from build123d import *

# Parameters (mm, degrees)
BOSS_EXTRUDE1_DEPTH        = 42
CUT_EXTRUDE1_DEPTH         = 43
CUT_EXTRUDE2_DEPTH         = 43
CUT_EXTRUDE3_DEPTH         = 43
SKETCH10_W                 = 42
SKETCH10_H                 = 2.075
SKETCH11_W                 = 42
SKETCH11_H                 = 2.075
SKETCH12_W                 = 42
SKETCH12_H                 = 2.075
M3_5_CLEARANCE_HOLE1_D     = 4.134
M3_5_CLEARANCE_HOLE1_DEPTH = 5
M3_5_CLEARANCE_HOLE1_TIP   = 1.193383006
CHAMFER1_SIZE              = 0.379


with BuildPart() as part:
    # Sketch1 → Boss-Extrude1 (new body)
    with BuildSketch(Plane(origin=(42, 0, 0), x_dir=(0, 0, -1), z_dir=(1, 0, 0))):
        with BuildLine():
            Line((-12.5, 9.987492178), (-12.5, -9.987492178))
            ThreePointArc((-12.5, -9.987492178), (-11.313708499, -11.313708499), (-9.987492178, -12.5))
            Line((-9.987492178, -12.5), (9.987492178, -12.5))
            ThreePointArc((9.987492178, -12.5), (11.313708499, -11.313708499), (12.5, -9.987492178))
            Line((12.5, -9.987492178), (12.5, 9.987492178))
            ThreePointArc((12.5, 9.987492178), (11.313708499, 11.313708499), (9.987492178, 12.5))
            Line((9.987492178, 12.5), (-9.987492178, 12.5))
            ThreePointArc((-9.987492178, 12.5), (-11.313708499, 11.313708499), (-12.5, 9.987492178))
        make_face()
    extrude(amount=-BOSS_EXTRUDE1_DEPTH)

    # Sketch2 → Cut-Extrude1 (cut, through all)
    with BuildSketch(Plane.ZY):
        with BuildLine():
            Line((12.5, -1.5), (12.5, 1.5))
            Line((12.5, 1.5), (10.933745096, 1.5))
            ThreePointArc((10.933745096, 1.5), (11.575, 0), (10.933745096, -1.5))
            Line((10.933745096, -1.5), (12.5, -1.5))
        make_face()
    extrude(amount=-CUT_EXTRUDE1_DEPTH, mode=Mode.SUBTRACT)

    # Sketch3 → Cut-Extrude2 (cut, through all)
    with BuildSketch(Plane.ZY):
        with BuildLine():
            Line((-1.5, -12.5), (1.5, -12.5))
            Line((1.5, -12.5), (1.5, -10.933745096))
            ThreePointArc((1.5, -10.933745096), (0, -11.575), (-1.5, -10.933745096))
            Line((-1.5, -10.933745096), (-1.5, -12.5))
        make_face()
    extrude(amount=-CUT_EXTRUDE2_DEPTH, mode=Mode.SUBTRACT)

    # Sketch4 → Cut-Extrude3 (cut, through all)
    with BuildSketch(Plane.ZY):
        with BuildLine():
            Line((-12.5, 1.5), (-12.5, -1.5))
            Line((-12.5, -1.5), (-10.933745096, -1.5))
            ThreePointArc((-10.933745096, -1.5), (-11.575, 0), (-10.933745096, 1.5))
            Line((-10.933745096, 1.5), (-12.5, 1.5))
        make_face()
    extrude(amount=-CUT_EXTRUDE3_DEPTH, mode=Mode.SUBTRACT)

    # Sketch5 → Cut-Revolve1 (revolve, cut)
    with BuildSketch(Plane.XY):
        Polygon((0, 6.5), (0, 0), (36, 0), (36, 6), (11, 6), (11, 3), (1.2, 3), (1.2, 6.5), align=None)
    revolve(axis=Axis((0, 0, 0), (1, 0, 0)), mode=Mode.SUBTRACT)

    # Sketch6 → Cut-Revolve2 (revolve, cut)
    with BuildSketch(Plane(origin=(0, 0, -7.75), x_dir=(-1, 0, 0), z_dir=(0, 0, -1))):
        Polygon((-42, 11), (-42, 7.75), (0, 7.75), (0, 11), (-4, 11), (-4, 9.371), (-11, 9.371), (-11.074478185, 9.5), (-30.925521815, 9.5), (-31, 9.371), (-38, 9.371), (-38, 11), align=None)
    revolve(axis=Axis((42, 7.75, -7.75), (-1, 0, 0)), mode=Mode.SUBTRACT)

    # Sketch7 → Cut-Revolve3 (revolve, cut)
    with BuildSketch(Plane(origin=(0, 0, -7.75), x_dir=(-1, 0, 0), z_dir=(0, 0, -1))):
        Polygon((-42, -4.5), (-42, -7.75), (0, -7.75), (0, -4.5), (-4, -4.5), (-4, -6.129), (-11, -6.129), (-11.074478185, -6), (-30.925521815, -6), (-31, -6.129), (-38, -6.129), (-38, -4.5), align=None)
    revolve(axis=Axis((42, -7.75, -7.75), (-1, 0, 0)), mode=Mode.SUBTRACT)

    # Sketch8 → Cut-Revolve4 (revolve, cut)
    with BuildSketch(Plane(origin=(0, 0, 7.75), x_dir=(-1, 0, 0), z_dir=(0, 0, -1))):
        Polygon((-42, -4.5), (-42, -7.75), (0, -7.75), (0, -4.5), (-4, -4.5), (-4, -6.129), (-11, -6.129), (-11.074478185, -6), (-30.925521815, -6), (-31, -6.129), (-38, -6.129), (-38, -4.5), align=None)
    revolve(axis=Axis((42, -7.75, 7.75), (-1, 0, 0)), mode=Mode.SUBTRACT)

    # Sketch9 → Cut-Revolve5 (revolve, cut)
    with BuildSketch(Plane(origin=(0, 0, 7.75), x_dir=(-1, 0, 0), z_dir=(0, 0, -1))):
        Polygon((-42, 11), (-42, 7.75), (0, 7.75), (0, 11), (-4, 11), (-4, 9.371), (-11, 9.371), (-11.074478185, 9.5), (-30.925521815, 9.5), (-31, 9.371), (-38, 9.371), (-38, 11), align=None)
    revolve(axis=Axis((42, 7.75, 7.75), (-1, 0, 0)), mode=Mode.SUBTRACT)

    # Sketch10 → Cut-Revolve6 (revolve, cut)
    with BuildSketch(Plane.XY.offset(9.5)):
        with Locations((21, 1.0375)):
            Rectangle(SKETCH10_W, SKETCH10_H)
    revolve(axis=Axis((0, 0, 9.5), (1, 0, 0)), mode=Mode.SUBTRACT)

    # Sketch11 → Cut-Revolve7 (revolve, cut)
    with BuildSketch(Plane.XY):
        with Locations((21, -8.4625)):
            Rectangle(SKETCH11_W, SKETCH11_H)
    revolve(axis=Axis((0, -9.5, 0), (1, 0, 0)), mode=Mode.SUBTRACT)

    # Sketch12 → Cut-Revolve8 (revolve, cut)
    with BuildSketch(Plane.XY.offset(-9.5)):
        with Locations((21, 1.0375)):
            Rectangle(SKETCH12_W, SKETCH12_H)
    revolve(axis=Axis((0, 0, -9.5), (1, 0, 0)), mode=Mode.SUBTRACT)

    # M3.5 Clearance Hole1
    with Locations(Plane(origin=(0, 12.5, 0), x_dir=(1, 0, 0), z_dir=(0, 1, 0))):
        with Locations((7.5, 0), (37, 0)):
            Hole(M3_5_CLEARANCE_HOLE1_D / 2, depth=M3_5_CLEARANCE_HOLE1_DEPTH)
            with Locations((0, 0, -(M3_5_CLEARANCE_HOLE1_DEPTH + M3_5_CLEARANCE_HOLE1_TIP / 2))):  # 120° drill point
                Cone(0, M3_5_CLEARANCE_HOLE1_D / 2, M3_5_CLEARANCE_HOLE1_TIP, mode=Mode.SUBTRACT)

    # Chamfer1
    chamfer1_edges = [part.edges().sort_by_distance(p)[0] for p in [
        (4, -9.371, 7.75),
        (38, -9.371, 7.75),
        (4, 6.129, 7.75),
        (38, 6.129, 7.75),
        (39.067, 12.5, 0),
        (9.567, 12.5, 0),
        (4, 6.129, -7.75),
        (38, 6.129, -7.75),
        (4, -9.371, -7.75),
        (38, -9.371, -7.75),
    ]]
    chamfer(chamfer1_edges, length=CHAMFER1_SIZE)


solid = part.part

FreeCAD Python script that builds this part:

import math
import FreeCAD as App
import Part
import Sketcher
Q = App.Units.Quantity


def edges_at(feature, points):
    """Names of the edges that pass closest to the given points."""
    edges = feature.Shape.Edges
    near = lambda p: min(range(len(edges)), key=lambda i: edges[i].distToShape(Part.Vertex(*p))[0])
    return sorted({f"Edge{near(p) + 1}" for p in points})


def add_polygon(sketch, points):
    """Adds a closed chain of lines whose ends are joined by coincident constraints."""
    first, n = sketch.GeometryCount, len(points)
    for a, b in zip(points, points[1:] + points[:1]):
        sketch.addGeometry(Part.LineSegment(App.Vector(*a, 0), App.Vector(*b, 0)), False)
    for i in range(n):
        sketch.addConstraint(Sketcher.Constraint("Coincident", first + i, 2, first + (i + 1) % n, 1))

doc = App.newDocument("Part")
body = doc.addObject("PartDesign::Body", "Body")

# Sketch on YZ plane
sketch1 = doc.addObject("Sketcher::SketchObject", "Sketch")
body.addObject(sketch1)
sketch1.AttachmentSupport = (doc.YZ_Plane, [""])
sketch1.MapMode = "FlatFace"
sketch1.AttachmentOffset = App.Placement(App.Vector(0, 0, 42), App.Rotation())
sketch1.addGeometry([
    Part.LineSegment(App.Vector(10, 12.5, 0), App.Vector(-10, 12.5, 0)),  # 0
    Part.ArcOfCircle(Part.Circle(App.Vector(0, 0, 0), App.Vector(0, 0, 1), 16), math.radians(128.62), math.radians(141.38)),  # 1
    Part.LineSegment(App.Vector(-12.5, 10, 0), App.Vector(-12.5, -10, 0)),  # 2
    Part.ArcOfCircle(Part.Circle(App.Vector(0, 0, 0), App.Vector(0, 0, 1), 16), math.radians(-141.38), math.radians(-128.62)),  # 3
    Part.LineSegment(App.Vector(-10, -12.5, 0), App.Vector(10, -12.5, 0)),  # 4
    Part.ArcOfCircle(Part.Circle(App.Vector(0, 0, 0), App.Vector(0, 0, 1), 16), math.radians(-51.38), math.radians(-38.62)),  # 5
    Part.LineSegment(App.Vector(12.5, -10, 0), App.Vector(12.5, 10, 0)),  # 6
    Part.ArcOfCircle(Part.Circle(App.Vector(0, 0, 0), App.Vector(0, 0, 1), 16), math.radians(38.62), math.radians(51.38)),  # 7
], False)
sketch1.addConstraint([
    Sketcher.Constraint("Coincident", 0, 2, 1, 1),
    Sketcher.Constraint("Coincident", 1, 2, 2, 1),
    Sketcher.Constraint("Coincident", 2, 2, 3, 1),
    Sketcher.Constraint("Coincident", 3, 2, 4, 1),
    Sketcher.Constraint("Coincident", 4, 2, 5, 1),
    Sketcher.Constraint("Coincident", 5, 2, 6, 1),
    Sketcher.Constraint("Coincident", 6, 2, 7, 1),
    Sketcher.Constraint("Coincident", 7, 2, 0, 1),
    Sketcher.Constraint("Horizontal", 0),
    Sketcher.Constraint("Vertical", 2),
    Sketcher.Constraint("Horizontal", 4),
    Sketcher.Constraint("Vertical", 6),
    Sketcher.Constraint("Coincident", 1, 3, -1, 1),
    Sketcher.Constraint("Coincident", 3, 3, -1, 1),
    Sketcher.Constraint("Coincident", 5, 3, -1, 1),
    Sketcher.Constraint("Coincident", 7, 3, -1, 1),
    Sketcher.Constraint("Equal", 1, 3),
    Sketcher.Constraint("Equal", 3, 5),
    Sketcher.Constraint("Equal", 5, 7),
    Sketcher.Constraint("Horizontal", 2, 2, 5, 2),
    Sketcher.Constraint("Vertical", 0, 2, 3, 2),
    Sketcher.Constraint("Equal", 4, 2),
    Sketcher.Constraint("Radius", 1, 16.0),
    Sketcher.Constraint("DistanceY", -1, 1, 0, 2, 12.5),
])
pad1 = doc.addObject("PartDesign::Pad", "Pad")
body.addObject(pad1)
pad1.Profile = sketch1
pad1.Length = 42
pad1.Reversed = True

# Sketch on YZ plane
sketch2 = doc.addObject("Sketcher::SketchObject", "Sketch001")
body.addObject(sketch2)
sketch2.AttachmentSupport = (doc.YZ_Plane, [""])
sketch2.MapMode = "FlatFace"
sketch2.addGeometry([
    Part.LineSegment(App.Vector(-1.5, 12.5, 0), App.Vector(1.5, 12.5, 0)),
    Part.LineSegment(App.Vector(1.5, 12.5, 0), App.Vector(1.5, 10.9, 0)),
    Part.ArcOfCircle(Part.Circle(App.Vector(0, 9.5, 0), App.Vector(0, 0, 1), 2.1), math.radians(44), math.radians(136)),
    Part.LineSegment(App.Vector(-1.5, 10.9, 0), App.Vector(-1.5, 12.5, 0)),
], False)
sketch2.addConstraint([
    Sketcher.Constraint("Coincident", 0, 2, 1, 1),
    Sketcher.Constraint("Coincident", 1, 2, 2, 1),
    Sketcher.Constraint("Coincident", 2, 2, 3, 1),
    Sketcher.Constraint("Coincident", 3, 2, 0, 1),
    Sketcher.Constraint("Horizontal", 0),
    Sketcher.Constraint("Vertical", 1),
    Sketcher.Constraint("Vertical", 3),
    Sketcher.Constraint("Symmetric", 1, 2, 2, 2, -2),
    Sketcher.Constraint("DistanceX", 0, 1, 0, 2, 3.0),
    Sketcher.Constraint("Radius", 2, 2.075),
    Sketcher.Constraint("DistanceY", 2, 3, 0, 2, 3.0),
    Sketcher.Constraint("DistanceY", -1, 1, 2, 3, 9.5),
])
pocket1 = doc.addObject("PartDesign::Pocket", "Pocket")
body.addObject(pocket1)
pocket1.Profile = sketch2
pocket1.Type = "ThroughAll"
pocket1.Reversed = True

# Sketch on YZ plane
sketch3 = doc.addObject("Sketcher::SketchObject", "Sketch002")
body.addObject(sketch3)
sketch3.AttachmentSupport = (doc.YZ_Plane, [""])
sketch3.MapMode = "FlatFace"
sketch3.addGeometry([
    Part.LineSegment(App.Vector(-12.5, -1.5, 0), App.Vector(-12.5, 1.5, 0)),
    Part.LineSegment(App.Vector(-12.5, 1.5, 0), App.Vector(-10.9, 1.5, 0)),
    Part.ArcOfCircle(Part.Circle(App.Vector(-9.5, 0, 0), App.Vector(0, 0, 1), 2.1), math.radians(134), math.radians(226)),
    Part.LineSegment(App.Vector(-10.9, -1.5, 0), App.Vector(-12.5, -1.5, 0)),
], False)
sketch3.addConstraint([
    Sketcher.Constraint("Coincident", 0, 2, 1, 1),
    Sketcher.Constraint("Coincident", 1, 2, 2, 1),
    Sketcher.Constraint("Coincident", 2, 2, 3, 1),
    Sketcher.Constraint("Coincident", 3, 2, 0, 1),
    Sketcher.Constraint("Vertical", 0),
    Sketcher.Constraint("Horizontal", 1),
    Sketcher.Constraint("Horizontal", 3),
    Sketcher.Constraint("Symmetric", 1, 2, 2, 2, -1),
    Sketcher.Constraint("DistanceY", 0, 1, 0, 2, 3.0),
    Sketcher.Constraint("Radius", 2, 2.075),
    Sketcher.Constraint("DistanceX", 0, 2, 2, 3, 3.0),
    Sketcher.Constraint("DistanceX", 2, 3, -1, 1, 9.5),
])
pocket2 = doc.addObject("PartDesign::Pocket", "Pocket001")
body.addObject(pocket2)
pocket2.Profile = sketch3
pocket2.Type = "ThroughAll"
pocket2.Reversed = True

# Sketch on YZ plane
sketch4 = doc.addObject("Sketcher::SketchObject", "Sketch003")
body.addObject(sketch4)
sketch4.AttachmentSupport = (doc.YZ_Plane, [""])
sketch4.MapMode = "FlatFace"
sketch4.addGeometry([
    Part.LineSegment(App.Vector(1.5, -12.5, 0), App.Vector(-1.5, -12.5, 0)),
    Part.LineSegment(App.Vector(-1.5, -12.5, 0), App.Vector(-1.5, -10.9, 0)),
    Part.ArcOfCircle(Part.Circle(App.Vector(0, -9.5, 0), App.Vector(0, 0, 1), 2.1), math.radians(-136), math.radians(-44)),
    Part.LineSegment(App.Vector(1.5, -10.9, 0), App.Vector(1.5, -12.5, 0)),
], False)
sketch4.addConstraint([
    Sketcher.Constraint("Coincident", 0, 2, 1, 1),
    Sketcher.Constraint("Coincident", 1, 2, 2, 1),
    Sketcher.Constraint("Coincident", 2, 2, 3, 1),
    Sketcher.Constraint("Coincident", 3, 2, 0, 1),
    Sketcher.Constraint("Horizontal", 0),
    Sketcher.Constraint("Vertical", 1),
    Sketcher.Constraint("Vertical", 3),
    Sketcher.Constraint("Symmetric", 1, 2, 2, 2, -2),
    Sketcher.Constraint("DistanceX", 0, 2, 0, 1, 3.0),
    Sketcher.Constraint("Radius", 2, 2.075),
    Sketcher.Constraint("DistanceY", 0, 2, 2, 3, 3.0),
    Sketcher.Constraint("DistanceY", 2, 3, -1, 1, 9.5),
])
pocket3 = doc.addObject("PartDesign::Pocket", "Pocket002")
body.addObject(pocket3)
pocket3.Profile = sketch4
pocket3.Type = "ThroughAll"
pocket3.Reversed = True

# Sketch on XY plane
sketch5 = doc.addObject("Sketcher::SketchObject", "Sketch004")
body.addObject(sketch5)
sketch5.AttachmentSupport = (doc.XY_Plane, [""])
sketch5.MapMode = "FlatFace"
add_polygon(sketch5, [(0, 6.5), (0, 0), (36, 0), (36, 6), (11, 6), (11, 3), (1.2, 3), (1.2, 6.5)])  # lines 0-7
sketch5.addConstraint([
    Sketcher.Constraint("Vertical", 0),
    Sketcher.Constraint("Horizontal", 1),
    Sketcher.Constraint("Vertical", 2),
    Sketcher.Constraint("Horizontal", 3),
    Sketcher.Constraint("Vertical", 4),
    Sketcher.Constraint("Horizontal", 5),
    Sketcher.Constraint("Vertical", 6),
    Sketcher.Constraint("Horizontal", 7),
    Sketcher.Constraint("Coincident", 0, 2, -1, 1),
    Sketcher.Constraint("DistanceX", 1, 1, 1, 2, 36.0),
    Sketcher.Constraint("DistanceX", 3, 2, 3, 1, 25.0),
    Sketcher.Constraint("DistanceY", 2, 1, 2, 2, 6.0),
    Sketcher.Constraint("DistanceY", 4, 2, 4, 1, 3.0),
    Sketcher.Constraint("DistanceX", 5, 2, 5, 1, 9.8),
    Sketcher.Constraint("DistanceY", 0, 2, 0, 1, 6.5),
])
groove = doc.addObject("PartDesign::Groove", "Groove")
body.addObject(groove)
groove.Profile = sketch5
groove.ReferenceAxis = (sketch5, ["H_Axis"])
groove.Angle = 360

# Sketch on XY plane
sketch6 = doc.addObject("Sketcher::SketchObject", "Sketch005")
body.addObject(sketch6)
sketch6.AttachmentSupport = (doc.XY_Plane, [""])
sketch6.MapMode = "FlatFace"
sketch6.AttachmentOffset = App.Placement(App.Vector(0, 0, -7.75), App.Rotation())
add_polygon(sketch6, [(42, 11), (42, 7.75), (0, 7.75), (0, 11), (4, 11), (4, 9.37), (11, 9.37), (11.07, 9.5), (30.93, 9.5), (31, 9.37), (38, 9.37), (38, 11)])  # lines 0-11
sketch6.addGeometry(Part.LineSegment(App.Vector(42, 7.75, 0), App.Vector(0, 7.75, 0)), True)  # axis
sketch6.addConstraint([
    Sketcher.Constraint("Vertical", 0),
    Sketcher.Constraint("Horizontal", 1),
    Sketcher.Constraint("Vertical", 2),
    Sketcher.Constraint("Horizontal", 3),
    Sketcher.Constraint("Vertical", 4),
    Sketcher.Constraint("Horizontal", 5),
    Sketcher.Constraint("Horizontal", 7),
    Sketcher.Constraint("Horizontal", 9),
    Sketcher.Constraint("Vertical", 10),
    Sketcher.Constraint("Horizontal", 11),
    Sketcher.Constraint("Horizontal", 12),
    Sketcher.Constraint("Coincident", 12, 1, 0, 2),
    Sketcher.Constraint("PointOnObject", 1, 2, -2),
    Sketcher.Constraint("PointOnObject", 12, 2, -2),
    Sketcher.Constraint("Horizontal", 5, 2, 8, 2),
    Sketcher.Constraint("Horizontal", 3, 2, 10, 2),
    Sketcher.Constraint("Equal", 5, 9),
    Sketcher.Constraint("Equal", 3, 11),
    Sketcher.Constraint("Equal", 6, 8),
    Sketcher.Constraint("DistanceX", 1, 2, 1, 1, 42.0),
    Sketcher.Constraint("DistanceX", 3, 1, 3, 2, 4.0),
    Sketcher.Constraint("DistanceX", 5, 1, 5, 2, 7.0),
    Sketcher.Constraint("Angle", 6, Q("60 deg")),
    Sketcher.Constraint("DistanceY", -1, 1, 2, 2, 11.0),
    Sketcher.Constraint("DistanceY", 0, 2, 0, 1, 3.25),
    Sketcher.Constraint("DistanceY", -1, 1, 6, 2, 9.5),
    Sketcher.Constraint("DistanceY", 4, 2, 4, 1, 1.629),
])
groove2 = doc.addObject("PartDesign::Groove", "Groove001")
body.addObject(groove2)
groove2.Profile = sketch6
groove2.ReferenceAxis = (sketch6, ["Axis0"])
groove2.Angle = 360

# Sketch on XY plane
sketch7 = doc.addObject("Sketcher::SketchObject", "Sketch006")
body.addObject(sketch7)
sketch7.AttachmentSupport = (doc.XY_Plane, [""])
sketch7.MapMode = "FlatFace"
sketch7.AttachmentOffset = App.Placement(App.Vector(0, 0, -7.75), App.Rotation())
add_polygon(sketch7, [(42, -4.5), (42, -7.75), (0, -7.75), (0, -4.5), (4, -4.5), (4, -6.13), (11, -6.13), (11.07, -6), (30.93, -6), (31, -6.13), (38, -6.13), (38, -4.5)])  # lines 0-11
sketch7.addGeometry(Part.LineSegment(App.Vector(42, -7.75, 0), App.Vector(0, -7.75, 0)), True)  # axis
sketch7.addConstraint([
    Sketcher.Constraint("Vertical", 0),
    Sketcher.Constraint("Horizontal", 1),
    Sketcher.Constraint("Vertical", 2),
    Sketcher.Constraint("Horizontal", 3),
    Sketcher.Constraint("Vertical", 4),
    Sketcher.Constraint("Horizontal", 5),
    Sketcher.Constraint("Horizontal", 7),
    Sketcher.Constraint("Horizontal", 9),
    Sketcher.Constraint("Vertical", 10),
    Sketcher.Constraint("Horizontal", 11),
    Sketcher.Constraint("Horizontal", 12),
    Sketcher.Constraint("Coincident", 12, 1, 0, 2),
    Sketcher.Constraint("PointOnObject", 1, 2, -2),
    Sketcher.Constraint("PointOnObject", 12, 2, -2),
    Sketcher.Constraint("Horizontal", 5, 2, 8, 2),
    Sketcher.Constraint("Horizontal", 3, 2, 10, 2),
    Sketcher.Constraint("Equal", 5, 9),
    Sketcher.Constraint("Equal", 3, 11),
    Sketcher.Constraint("Equal", 6, 8),
    Sketcher.Constraint("DistanceX", 1, 2, 1, 1, 42.0),
    Sketcher.Constraint("DistanceX", 3, 1, 3, 2, 4.0),
    Sketcher.Constraint("DistanceX", 5, 1, 5, 2, 7.0),
    Sketcher.Constraint("Angle", 6, Q("60 deg")),
    Sketcher.Constraint("DistanceY", 6, 2, -1, 1, 6.0),
    Sketcher.Constraint("DistanceY", 0, 2, 0, 1, 3.25),
    Sketcher.Constraint("DistanceY", 2, 2, -1, 1, 4.5),
    Sketcher.Constraint("DistanceY", 4, 2, 4, 1, 1.629),
])
groove3 = doc.addObject("PartDesign::Groove", "Groove002")
body.addObject(groove3)
groove3.Profile = sketch7
groove3.ReferenceAxis = (sketch7, ["Axis0"])
groove3.Angle = 360

# Sketch on XY plane
sketch8 = doc.addObject("Sketcher::SketchObject", "Sketch007")
body.addObject(sketch8)
sketch8.AttachmentSupport = (doc.XY_Plane, [""])
sketch8.MapMode = "FlatFace"
sketch8.AttachmentOffset = App.Placement(App.Vector(0, 0, 7.75), App.Rotation())
add_polygon(sketch8, [(42, -4.5), (42, -7.75), (0, -7.75), (0, -4.5), (4, -4.5), (4, -6.13), (11, -6.13), (11.07, -6), (30.93, -6), (31, -6.13), (38, -6.13), (38, -4.5)])  # lines 0-11
sketch8.addGeometry(Part.LineSegment(App.Vector(42, -7.75, 0), App.Vector(0, -7.75, 0)), True)  # axis
sketch8.addConstraint([
    Sketcher.Constraint("Vertical", 0),
    Sketcher.Constraint("Horizontal", 1),
    Sketcher.Constraint("Vertical", 2),
    Sketcher.Constraint("Horizontal", 3),
    Sketcher.Constraint("Vertical", 4),
    Sketcher.Constraint("Horizontal", 5),
    Sketcher.Constraint("Horizontal", 7),
    Sketcher.Constraint("Horizontal", 9),
    Sketcher.Constraint("Vertical", 10),
    Sketcher.Constraint("Horizontal", 11),
    Sketcher.Constraint("Horizontal", 12),
    Sketcher.Constraint("Coincident", 12, 1, 0, 2),
    Sketcher.Constraint("PointOnObject", 1, 2, -2),
    Sketcher.Constraint("PointOnObject", 12, 2, -2),
    Sketcher.Constraint("Horizontal", 5, 2, 8, 2),
    Sketcher.Constraint("Horizontal", 3, 2, 10, 2),
    Sketcher.Constraint("Equal", 5, 9),
    Sketcher.Constraint("Equal", 3, 11),
    Sketcher.Constraint("Equal", 6, 8),
    Sketcher.Constraint("DistanceX", 1, 2, 1, 1, 42.0),
    Sketcher.Constraint("DistanceX", 3, 1, 3, 2, 4.0),
    Sketcher.Constraint("DistanceX", 5, 1, 5, 2, 7.0),
    Sketcher.Constraint("Angle", 6, Q("60 deg")),
    Sketcher.Constraint("DistanceY", 6, 2, -1, 1, 6.0),
    Sketcher.Constraint("DistanceY", 0, 2, 0, 1, 3.25),
    Sketcher.Constraint("DistanceY", 2, 2, -1, 1, 4.5),
    Sketcher.Constraint("DistanceY", 4, 2, 4, 1, 1.629),
])
groove4 = doc.addObject("PartDesign::Groove", "Groove003")
body.addObject(groove4)
groove4.Profile = sketch8
groove4.ReferenceAxis = (sketch8, ["Axis0"])
groove4.Angle = 360

# Sketch on XY plane
sketch9 = doc.addObject("Sketcher::SketchObject", "Sketch008")
body.addObject(sketch9)
sketch9.AttachmentSupport = (doc.XY_Plane, [""])
sketch9.MapMode = "FlatFace"
sketch9.AttachmentOffset = App.Placement(App.Vector(0, 0, 7.75), App.Rotation())
add_polygon(sketch9, [(42, 11), (42, 7.75), (0, 7.75), (0, 11), (4, 11), (4, 9.37), (11, 9.37), (11.07, 9.5), (30.93, 9.5), (31, 9.37), (38, 9.37), (38, 11)])  # lines 0-11
sketch9.addGeometry(Part.LineSegment(App.Vector(42, 7.75, 0), App.Vector(0, 7.75, 0)), True)  # axis
sketch9.addConstraint([
    Sketcher.Constraint("Vertical", 0),
    Sketcher.Constraint("Horizontal", 1),
    Sketcher.Constraint("Vertical", 2),
    Sketcher.Constraint("Horizontal", 3),
    Sketcher.Constraint("Vertical", 4),
    Sketcher.Constraint("Horizontal", 5),
    Sketcher.Constraint("Horizontal", 7),
    Sketcher.Constraint("Horizontal", 9),
    Sketcher.Constraint("Vertical", 10),
    Sketcher.Constraint("Horizontal", 11),
    Sketcher.Constraint("Horizontal", 12),
    Sketcher.Constraint("Coincident", 12, 1, 0, 2),
    Sketcher.Constraint("PointOnObject", 1, 2, -2),
    Sketcher.Constraint("PointOnObject", 12, 2, -2),
    Sketcher.Constraint("Horizontal", 5, 2, 8, 2),
    Sketcher.Constraint("Horizontal", 3, 2, 10, 2),
    Sketcher.Constraint("Equal", 5, 9),
    Sketcher.Constraint("Equal", 3, 11),
    Sketcher.Constraint("Equal", 6, 8),
    Sketcher.Constraint("DistanceX", 1, 2, 1, 1, 42.0),
    Sketcher.Constraint("DistanceX", 3, 1, 3, 2, 4.0),
    Sketcher.Constraint("DistanceX", 5, 1, 5, 2, 7.0),
    Sketcher.Constraint("Angle", 6, Q("60 deg")),
    Sketcher.Constraint("DistanceY", -1, 1, 2, 2, 11.0),
    Sketcher.Constraint("DistanceY", 0, 2, 0, 1, 3.25),
    Sketcher.Constraint("DistanceY", -1, 1, 6, 2, 9.5),
    Sketcher.Constraint("DistanceY", 4, 2, 4, 1, 1.629),
])
groove5 = doc.addObject("PartDesign::Groove", "Groove004")
body.addObject(groove5)
groove5.Profile = sketch9
groove5.ReferenceAxis = (sketch9, ["Axis0"])
groove5.Angle = 360

# Sketch on XY plane
sketch10 = doc.addObject("Sketcher::SketchObject", "Sketch009")
body.addObject(sketch10)
sketch10.AttachmentSupport = (doc.XY_Plane, [""])
sketch10.MapMode = "FlatFace"
sketch10.AttachmentOffset = App.Placement(App.Vector(0, 0, 9.5), App.Rotation())
add_polygon(sketch10, [(0, 2.1), (0, 0), (42, 0), (42, 2.1)])  # lines 0-3
sketch10.addConstraint([
    Sketcher.Constraint("Vertical", 0),
    Sketcher.Constraint("Horizontal", 1),
    Sketcher.Constraint("Vertical", 2),
    Sketcher.Constraint("Horizontal", 3),
    Sketcher.Constraint("Coincident", 0, 2, -1, 1),
    Sketcher.Constraint("DistanceX", 1, 1, 1, 2, 42.0),
    Sketcher.Constraint("DistanceY", 0, 2, 0, 1, 2.075),
])
groove6 = doc.addObject("PartDesign::Groove", "Groove005")
body.addObject(groove6)
groove6.Profile = sketch10
groove6.ReferenceAxis = (sketch10, ["H_Axis"])
groove6.Angle = 360

# Sketch on XY plane
sketch11 = doc.addObject("Sketcher::SketchObject", "Sketch010")
body.addObject(sketch11)
sketch11.AttachmentSupport = (doc.XY_Plane, [""])
sketch11.MapMode = "FlatFace"
add_polygon(sketch11, [(0, -7.4), (0, -9.5), (42, -9.5), (42, -7.4)])  # lines 0-3
sketch11.addGeometry(Part.LineSegment(App.Vector(0, -9.5, 0), App.Vector(42, -9.5, 0)), True)  # axis
sketch11.addConstraint([
    Sketcher.Constraint("Vertical", 0),
    Sketcher.Constraint("Horizontal", 1),
    Sketcher.Constraint("Vertical", 2),
    Sketcher.Constraint("Horizontal", 3),
    Sketcher.Constraint("Horizontal", 4),
    Sketcher.Constraint("Coincident", 4, 1, 0, 2),
    Sketcher.Constraint("PointOnObject", 0, 2, -2),
    Sketcher.Constraint("Vertical", 2, 2, 4, 2),
    Sketcher.Constraint("DistanceX", 1, 1, 1, 2, 42.0),
    Sketcher.Constraint("DistanceY", 0, 2, -1, 1, 9.5),
    Sketcher.Constraint("DistanceY", 0, 2, 0, 1, 2.075),
])
groove7 = doc.addObject("PartDesign::Groove", "Groove006")
body.addObject(groove7)
groove7.Profile = sketch11
groove7.ReferenceAxis = (sketch11, ["Axis0"])
groove7.Angle = 360

# Sketch on XY plane
sketch12 = doc.addObject("Sketcher::SketchObject", "Sketch011")
body.addObject(sketch12)
sketch12.AttachmentSupport = (doc.XY_Plane, [""])
sketch12.MapMode = "FlatFace"
sketch12.AttachmentOffset = App.Placement(App.Vector(0, 0, -9.5), App.Rotation())
add_polygon(sketch12, [(0, 2.1), (0, 0), (42, 0), (42, 2.1)])  # lines 0-3
sketch12.addConstraint([
    Sketcher.Constraint("Vertical", 0),
    Sketcher.Constraint("Horizontal", 1),
    Sketcher.Constraint("Vertical", 2),
    Sketcher.Constraint("Horizontal", 3),
    Sketcher.Constraint("Coincident", 0, 2, -1, 1),
    Sketcher.Constraint("DistanceX", 1, 1, 1, 2, 42.0),
    Sketcher.Constraint("DistanceY", 0, 2, 0, 1, 2.075),
])
groove8 = doc.addObject("PartDesign::Groove", "Groove007")
body.addObject(groove8)
groove8.Profile = sketch12
groove8.ReferenceAxis = (sketch12, ["H_Axis"])
groove8.Angle = 360

# Sketch on XZ plane
sketch13 = doc.addObject("Sketcher::SketchObject", "Sketch012")
body.addObject(sketch13)
sketch13.AttachmentSupport = (doc.XZ_Plane, [""])
sketch13.MapMode = "FlatFace"
sketch13.AttachmentOffset = App.Placement(App.Vector(0, 0, -12.5), App.Rotation())
sketch13.addGeometry([
    Part.Circle(App.Vector(7.5, 0, 0), App.Vector(0, 0, 1), 2.1),
    Part.Circle(App.Vector(37, 0, 0), App.Vector(0, 0, 1), 2.1),
], False)
sketch13.addConstraint([
    Sketcher.Constraint("Equal", 0, 1),
    Sketcher.Constraint("PointOnObject", 0, 3, -1),
    Sketcher.Constraint("PointOnObject", 1, 3, -1),
    Sketcher.Constraint("Diameter", 0, 4.134),
    Sketcher.Constraint("DistanceX", -1, 1, 1, 3, 37.0),
    Sketcher.Constraint("DistanceX", -1, 1, 0, 3, 7.5),
])
doc.recompute()
hole = doc.addObject("PartDesign::Hole", "Hole")
body.addObject(hole)
hole.Profile = sketch13
hole.ThreadType = "None"
hole.Diameter = 4.134
hole.DepthType = "Dimension"
hole.Depth = 5
hole.DrillPoint = "Angled"
hole.DrillPointAngle = 120
hole.Reversed = True
doc.recompute()

chamfer = doc.addObject("PartDesign::Chamfer", "Chamfer")
body.addObject(chamfer)
chamfer.Base = (hole, edges_at(hole, [
    (4, -9.371, 7.75),
    (38, -9.371, 7.75),
    (4, 6.129, 7.75),
    (38, 6.129, 7.75),
    (39.067, 12.5, 0),
    (9.567, 12.5, 0),
    (4, 6.129, -7.75),
    (38, 6.129, -7.75),
    (4, -9.371, -7.75),
    (38, -9.371, -7.75),
]))
chamfer.Size = 0.379

doc.recompute()
